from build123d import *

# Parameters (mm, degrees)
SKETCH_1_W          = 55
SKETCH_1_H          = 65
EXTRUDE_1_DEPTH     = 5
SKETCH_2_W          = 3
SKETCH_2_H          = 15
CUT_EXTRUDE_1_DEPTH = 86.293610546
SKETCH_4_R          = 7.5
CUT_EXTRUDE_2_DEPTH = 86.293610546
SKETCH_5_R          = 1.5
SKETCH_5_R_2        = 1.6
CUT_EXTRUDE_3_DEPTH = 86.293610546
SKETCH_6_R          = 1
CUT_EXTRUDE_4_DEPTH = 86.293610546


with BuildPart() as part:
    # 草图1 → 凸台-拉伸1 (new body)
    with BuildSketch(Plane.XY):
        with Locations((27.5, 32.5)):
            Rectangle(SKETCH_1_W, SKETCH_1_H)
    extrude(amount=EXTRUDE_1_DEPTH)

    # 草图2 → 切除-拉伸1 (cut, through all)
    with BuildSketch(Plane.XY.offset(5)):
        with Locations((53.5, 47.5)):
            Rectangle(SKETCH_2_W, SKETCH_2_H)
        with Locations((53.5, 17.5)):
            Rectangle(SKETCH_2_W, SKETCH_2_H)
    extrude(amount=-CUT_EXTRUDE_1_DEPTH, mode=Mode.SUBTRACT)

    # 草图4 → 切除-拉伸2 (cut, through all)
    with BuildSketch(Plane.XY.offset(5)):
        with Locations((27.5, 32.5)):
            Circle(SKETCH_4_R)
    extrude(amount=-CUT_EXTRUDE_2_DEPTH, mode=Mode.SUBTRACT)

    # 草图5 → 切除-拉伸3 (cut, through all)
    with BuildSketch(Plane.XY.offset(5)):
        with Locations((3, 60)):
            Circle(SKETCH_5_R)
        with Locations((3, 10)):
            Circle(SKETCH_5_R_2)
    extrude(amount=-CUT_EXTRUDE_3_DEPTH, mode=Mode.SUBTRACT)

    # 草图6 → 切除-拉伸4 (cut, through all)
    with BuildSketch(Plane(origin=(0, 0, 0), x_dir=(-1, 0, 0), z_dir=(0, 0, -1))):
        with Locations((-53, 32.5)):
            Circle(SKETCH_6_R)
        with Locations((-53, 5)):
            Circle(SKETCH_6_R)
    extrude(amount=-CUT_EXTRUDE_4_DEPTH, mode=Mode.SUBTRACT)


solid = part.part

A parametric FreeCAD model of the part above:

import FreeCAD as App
import Part
import Sketcher

V = App.Vector
Q = App.Units.Quantity


def add_polygon(sketch, points):
    """Adds a closed chain of lines whose ends are joined by coincident constraints."""
    first, n = sketch.GeometryCount, len(points)
    for a, b in zip(points, points[1:] + points[:1]):
        sketch.addGeometry(Part.LineSegment(App.Vector(*a, 0), App.Vector(*b, 0)), False)
    for i in range(n):
        sketch.addConstraint(Sketcher.Constraint("Coincident", first + i, 2, first + (i + 1) % n, 1))

doc = App.newDocument("Part")
params = doc.addObject("Spreadsheet::Sheet", "Params")
for row, (alias, value) in enumerate([
    ("sketch1_width", "55 mm"),
    ("sketch1_height", "65 mm"),
    ("pad1_length", "5 mm"),
    ("sketch2_width", "3 mm"),
    ("sketch2_height", "15 mm"),
    ("sketch3_diameter", "15 mm"),
    ("sketch4_diameter", "3 mm"),
    ("sketch4_diameter2", "3.2 mm"),
    ("sketch5_diameter", "2 mm"),
], start=1):
    params.set(f"A{row}", alias)
    params.set(f"B{row}", "=" + value)
    params.setAlias(f"B{row}", alias)

body = doc.addObject("PartDesign::Body", "Body")

sketch1 = doc.addObject("Sketcher::SketchObject", "Sketch")
body.addObject(sketch1)
sketch1.AttachmentSupport = (doc.XY_Plane, [""])
sketch1.MapMode = "FlatFace"
add_polygon(sketch1, [(0, 65), (0, 0), (55, 0), (55, 65)])
sketch1.addConstraint([
    Sketcher.Constraint("Vertical", 0),
    Sketcher.Constraint("Horizontal", 1),
    Sketcher.Constraint("Vertical", 2),
    Sketcher.Constraint("Horizontal", 3),
    Sketcher.Constraint("Coincident", 0, 2, -1, 1),
    Sketcher.Constraint("DistanceX", 1, 1, 1, 2, Q("55 mm")),
    Sketcher.Constraint("DistanceY", 0, 2, 0, 1, Q("65 mm")),
])
sketch1.setExpression("Constraints[9]", "Params.sketch1_width")
sketch1.setExpression("Constraints[10]", "Params.sketch1_height")
pad1 = doc.addObject("PartDesign::Pad", "Pad")
body.addObject(pad1)
pad1.Profile = sketch1
pad1.setExpression("Length", "Params.pad1_length")

sketch2 = doc.addObject("Sketcher::SketchObject", "Sketch001")
body.addObject(sketch2)
sketch2.AttachmentSupport = (doc.XY_Plane, [""])
sketch2.MapMode = "FlatFace"
sketch2.AttachmentOffset = App.Placement(V(0, 0, 5), App.Rotation())
add_polygon(sketch2, [(52, 55), (52, 40), (55, 40), (55, 55)])
add_polygon(sketch2, [(52, 25), (52, 10), (55, 10), (55, 25)])
sketch2.addConstraint([
    Sketcher.Constraint("Vertical", 0),
    Sketcher.Constraint("Horizontal", 1),
    Sketcher.Constraint("Vertical", 2),
    Sketcher.Constraint("Horizontal", 3),
    Sketcher.Constraint("Vertical", 4),
    Sketcher.Constraint("Horizontal", 5),
    Sketcher.Constraint("Vertical", 6),
    Sketcher.Constraint("Horizontal", 7),
    Sketcher.Constraint("Vertical", 3, 2, 4, 2),
    Sketcher.Constraint("Vertical", 2, 2, 5, 2),
    Sketcher.Constraint("Equal", 2, 4),
    Sketcher.Constraint("DistanceX", 1, 1, 1, 2, Q("3 mm")),
    Sketcher.Constraint("DistanceY", 0, 2, 0, 1, Q("15 mm")),
    Sketcher.Constraint("DistanceX", -1, 1, 0, 2, Q("52 mm")),
    Sketcher.Constraint("DistanceY", -1, 1, 0, 2, Q("40 mm")),
    Sketcher.Constraint("DistanceY", -1, 1, 4, 2, Q("10 mm")),
])
sketch2.setExpression("Constraints[19]", "Params.sketch2_width")
sketch2.setExpression("Constraints[20]", "Params.sketch2_height")
pocket1 = doc.addObject("PartDesign::Pocket", "Pocket")
body.addObject(pocket1)
pocket1.Profile = sketch2
pocket1.Type = "ThroughAll"

sketch3 = doc.addObject("Sketcher::SketchObject", "Sketch002")
body.addObject(sketch3)
sketch3.AttachmentSupport = (doc.XY_Plane, [""])
sketch3.MapMode = "FlatFace"
sketch3.AttachmentOffset = App.Placement(V(0, 0, 5), App.Rotation())
sketch3.addGeometry(Part.Circle(V(27.5, 32.5, 0), V(0, 0, 1), 7.5), False)
sketch3.addConstraint([
    Sketcher.Constraint("Diameter", 0, Q("15 mm")),
    Sketcher.Constraint("DistanceX", -1, 1, 0, 3, Q("27.5 mm")),
    Sketcher.Constraint("DistanceY", -1, 1, 0, 3, Q("32.5 mm")),
])
sketch3.setExpression("Constraints[0]", "Params.sketch3_diameter")
pocket2 = doc.addObject("PartDesign::Pocket", "Pocket001")
body.addObject(pocket2)
pocket2.Profile = sketch3
pocket2.Type = "ThroughAll"

sketch4 = doc.addObject("Sketcher::SketchObject", "Sketch003")
body.addObject(sketch4)
sketch4.AttachmentSupport = (doc.XY_Plane, [""])
sketch4.MapMode = "FlatFace"
sketch4.AttachmentOffset = App.Placement(V(0, 0, 5), App.Rotation())
sketch4.addGeometry([
    Part.Circle(V(3, 60, 0), V(0, 0, 1), 1.5),
    Part.Circle(V(3, 10, 0), V(0, 0, 1), 1.6),
], False)
sketch4.addConstraint([
    Sketcher.Constraint("Vertical", 0, 3, 1, 3),
    Sketcher.Constraint("Diameter", 0, Q("3 mm")),
    Sketcher.Constraint("Diameter", 1, Q("3.2 mm")),
    Sketcher.Constraint("DistanceX", -1, 1, 0, 3, Q("3 mm")),
    Sketcher.Constraint("DistanceY", -1, 1, 0, 3, Q("60 mm")),
    Sketcher.Constraint("DistanceY", -1, 1, 1, 3, Q("10 mm")),
])
sketch4.setExpression("Constraints[1]", "Params.sketch4_diameter")
sketch4.setExpression("Constraints[2]", "Params.sketch4_diameter2")
pocket3 = doc.addObject("PartDesign::Pocket", "Pocket002")
body.addObject(pocket3)
pocket3.Profile = sketch4
pocket3.Type = "ThroughAll"

sketch5 = doc.addObject("Sketcher::SketchObject", "Sketch004")
body.addObject(sketch5)
sketch5.AttachmentSupport = (doc.XY_Plane, [""])
sketch5.MapMode = "FlatFace"
sketch5.addGeometry([
    Part.Circle(V(53, 32.5, 0), V(0, 0, 1), 1),
    Part.Circle(V(53, 5, 0), V(0, 0, 1), 1),
], False)
sketch5.addConstraint([
    Sketcher.Constraint("Equal", 0, 1),
    Sketcher.Constraint("Vertical", 0, 3, 1, 3),
    Sketcher.Constraint("Diameter", 0, Q("2 mm")),
    Sketcher.Constraint("DistanceX", -1, 1, 0, 3, Q("53 mm")),
    Sketcher.Constraint("DistanceY", -1, 1, 1, 3, Q("5 mm")),
    Sketcher.Constraint("DistanceY", -1, 1, 0, 3, Q("32.5 mm")),
])
sketch5.setExpression("Constraints[2]", "Params.sketch5_diameter")
pocket4 = doc.addObject("PartDesign::Pocket", "Pocket003")
body.addObject(pocket4)
pocket4.Profile = sketch5
pocket4.Type = "ThroughAll"
pocket4.Reversed = True

doc.recompute()
